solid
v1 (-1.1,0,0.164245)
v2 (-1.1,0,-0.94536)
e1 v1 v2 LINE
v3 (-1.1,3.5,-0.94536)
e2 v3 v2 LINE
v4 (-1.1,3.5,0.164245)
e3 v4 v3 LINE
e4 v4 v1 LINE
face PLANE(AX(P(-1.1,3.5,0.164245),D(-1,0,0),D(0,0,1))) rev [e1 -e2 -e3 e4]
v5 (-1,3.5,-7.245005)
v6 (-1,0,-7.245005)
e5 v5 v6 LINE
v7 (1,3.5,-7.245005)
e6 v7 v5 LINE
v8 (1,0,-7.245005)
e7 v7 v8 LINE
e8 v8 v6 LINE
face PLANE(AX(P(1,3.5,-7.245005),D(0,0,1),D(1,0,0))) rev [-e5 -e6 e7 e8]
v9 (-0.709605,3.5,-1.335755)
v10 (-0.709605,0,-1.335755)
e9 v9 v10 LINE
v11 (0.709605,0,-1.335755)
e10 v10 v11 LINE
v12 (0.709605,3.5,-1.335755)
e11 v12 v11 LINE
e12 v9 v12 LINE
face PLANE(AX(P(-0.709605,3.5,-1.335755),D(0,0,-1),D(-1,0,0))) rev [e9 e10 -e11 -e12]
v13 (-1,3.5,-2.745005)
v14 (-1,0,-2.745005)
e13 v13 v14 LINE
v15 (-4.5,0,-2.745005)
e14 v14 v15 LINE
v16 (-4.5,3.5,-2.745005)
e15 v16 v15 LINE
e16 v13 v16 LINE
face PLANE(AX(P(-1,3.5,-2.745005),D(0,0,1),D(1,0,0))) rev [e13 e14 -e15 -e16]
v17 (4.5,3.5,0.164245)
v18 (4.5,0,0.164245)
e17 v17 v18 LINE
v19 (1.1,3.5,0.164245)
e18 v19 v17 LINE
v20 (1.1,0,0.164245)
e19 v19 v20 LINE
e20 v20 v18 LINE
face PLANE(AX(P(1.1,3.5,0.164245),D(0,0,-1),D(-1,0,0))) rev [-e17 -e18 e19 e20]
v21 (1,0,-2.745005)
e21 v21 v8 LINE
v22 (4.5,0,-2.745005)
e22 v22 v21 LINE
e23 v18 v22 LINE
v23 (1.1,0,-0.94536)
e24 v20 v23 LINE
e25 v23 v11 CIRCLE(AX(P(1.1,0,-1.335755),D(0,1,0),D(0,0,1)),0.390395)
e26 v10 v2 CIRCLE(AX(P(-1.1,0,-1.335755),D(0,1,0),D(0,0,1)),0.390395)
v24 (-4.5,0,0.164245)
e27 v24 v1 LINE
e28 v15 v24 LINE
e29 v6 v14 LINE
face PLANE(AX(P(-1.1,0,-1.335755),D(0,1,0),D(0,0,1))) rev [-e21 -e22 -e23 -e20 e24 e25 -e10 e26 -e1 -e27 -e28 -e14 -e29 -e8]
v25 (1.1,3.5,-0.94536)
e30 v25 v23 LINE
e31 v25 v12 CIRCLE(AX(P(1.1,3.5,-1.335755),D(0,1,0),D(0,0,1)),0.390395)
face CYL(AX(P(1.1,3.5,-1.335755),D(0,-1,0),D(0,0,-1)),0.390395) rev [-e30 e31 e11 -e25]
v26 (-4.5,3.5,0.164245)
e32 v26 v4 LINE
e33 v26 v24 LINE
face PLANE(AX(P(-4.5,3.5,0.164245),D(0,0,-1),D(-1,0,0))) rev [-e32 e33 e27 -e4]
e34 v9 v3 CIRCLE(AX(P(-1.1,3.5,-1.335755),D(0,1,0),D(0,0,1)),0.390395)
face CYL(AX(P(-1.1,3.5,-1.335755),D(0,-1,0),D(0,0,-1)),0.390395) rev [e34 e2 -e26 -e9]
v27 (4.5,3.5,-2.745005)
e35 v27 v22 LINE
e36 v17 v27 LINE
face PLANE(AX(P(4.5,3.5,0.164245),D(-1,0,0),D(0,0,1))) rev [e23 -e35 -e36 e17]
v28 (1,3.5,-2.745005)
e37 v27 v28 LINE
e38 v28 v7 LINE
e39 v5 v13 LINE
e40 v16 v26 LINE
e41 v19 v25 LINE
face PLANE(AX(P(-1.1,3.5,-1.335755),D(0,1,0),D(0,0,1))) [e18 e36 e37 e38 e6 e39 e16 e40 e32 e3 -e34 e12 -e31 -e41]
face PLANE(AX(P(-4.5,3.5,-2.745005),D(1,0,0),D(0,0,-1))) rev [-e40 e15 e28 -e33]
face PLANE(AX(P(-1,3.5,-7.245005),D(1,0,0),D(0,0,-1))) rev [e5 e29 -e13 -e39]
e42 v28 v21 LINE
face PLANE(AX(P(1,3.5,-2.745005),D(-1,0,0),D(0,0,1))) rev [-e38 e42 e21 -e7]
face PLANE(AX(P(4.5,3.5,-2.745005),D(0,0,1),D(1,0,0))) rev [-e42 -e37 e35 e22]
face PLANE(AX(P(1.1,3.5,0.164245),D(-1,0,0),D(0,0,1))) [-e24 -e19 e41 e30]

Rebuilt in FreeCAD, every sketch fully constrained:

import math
import FreeCAD as App
import Part
import Sketcher

V = App.Vector

doc = App.newDocument("Part")
body = doc.addObject("PartDesign::Body", "Body")

sketch1 = body.newObject("Sketcher::SketchObject", "Sketch")
sketch1.AttachmentSupport = (doc.getObject("XZ_Plane"), [""])
sketch1.MapMode = "FlatFace"
sketch1.addGeometry([
    Part.LineSegment(V(-4.5, 0.16, 0), V(-1.1, 0.16, 0)),
    Part.LineSegment(V(-1.1, 0.16, 0), V(-1.1, -0.95, 0)),
    Part.ArcOfCircle(Part.Circle(V(-1.1, -1.34, 0), V(0, 0, 1), 0.39), math.radians(90), math.radians(360)),
    Part.LineSegment(V(-0.71, -1.34, 0), V(0.71, -1.34, 0)),
    Part.ArcOfCircle(Part.Circle(V(1.1, -1.34, 0), V(0, 0, 1), 0.39), math.radians(180), math.radians(450)),
    Part.LineSegment(V(1.1, -0.95, 0), V(1.1, 0.16, 0)),
    Part.LineSegment(V(1.1, 0.16, 0), V(4.5, 0.16, 0)),
    Part.LineSegment(V(4.5, 0.16, 0), V(4.5, -2.75, 0)),
    Part.LineSegment(V(4.5, -2.75, 0), V(1, -2.75, 0)),
    Part.LineSegment(V(1, -2.75, 0), V(1, -7.25, 0)),
    Part.LineSegment(V(1, -7.25, 0), V(-1, -7.25, 0)),
    Part.LineSegment(V(-1, -7.25, 0), V(-1, -2.75, 0)),
    Part.LineSegment(V(-1, -2.75, 0), V(-4.5, -2.75, 0)),
    Part.LineSegment(V(-4.5, -2.75, 0), V(-4.5, 0.16, 0)),
], False)
sketch1.addConstraint([
    Sketcher.Constraint("Coincident", 0, 2, 1, 1),
    Sketcher.Constraint("Coincident", 1, 2, 2, 1),
    Sketcher.Constraint("Coincident", 2, 2, 3, 1),
    Sketcher.Constraint("Coincident", 3, 2, 4, 1),
    Sketcher.Constraint("Coincident", 4, 2, 5, 1),
    Sketcher.Constraint("Coincident", 5, 2, 6, 1),
    Sketcher.Constraint("Coincident", 6, 2, 7, 1),
    Sketcher.Constraint("Coincident", 7, 2, 8, 1),
    Sketcher.Constraint("Coincident", 8, 2, 9, 1),
    Sketcher.Constraint("Coincident", 9, 2, 10, 1),
    Sketcher.Constraint("Coincident", 10, 2, 11, 1),
    Sketcher.Constraint("Coincident", 11, 2, 12, 1),
    Sketcher.Constraint("Coincident", 12, 2, 13, 1),
    Sketcher.Constraint("Coincident", 13, 2, 0, 1),
    Sketcher.Constraint("Horizontal", 0),
    Sketcher.Constraint("Vertical", 1),
    Sketcher.Constraint("Horizontal", 3),
    Sketcher.Constraint("Vertical", 5),
    Sketcher.Constraint("Horizontal", 6),
    Sketcher.Constraint("Vertical", 7),
    Sketcher.Constraint("Horizontal", 8),
    Sketcher.Constraint("Vertical", 9),
    Sketcher.Constraint("Horizontal", 10),
    Sketcher.Constraint("Vertical", 11),
    Sketcher.Constraint("Horizontal", 12),
    Sketcher.Constraint("Vertical", 13),
    Sketcher.Constraint("Equal", 2, 4),
    Sketcher.Constraint("Symmetric", 2, 3, 4, 3, -2),
    Sketcher.Constraint("Symmetric", 0, 2, 5, 2, -2),
    Sketcher.Constraint("Symmetric", 8, 2, 11, 2, -2),
    Sketcher.Constraint("Horizontal", 4, 3, 2, 2),
    Sketcher.Constraint("Vertical", 2, 3, 0, 2),
    Sketcher.Constraint("Equal", 0, 6),
    Sketcher.Constraint("DistanceX", 10, 2, 10, 1, 2.0),
    Sketcher.Constraint("DistanceX", 0, 1, 0, 2, 3.4),
    Sketcher.Constraint("DistanceX", 8, 2, 8, 1, 3.5),
    Sketcher.Constraint("DistanceY", 9, 2, 9, 1, 4.5),
    Sketcher.Constraint("DistanceY", 2, 3, 0, 2, 1.5),
    Sketcher.Constraint("Radius", 2, 0.390395),
    Sketcher.Constraint("DistanceY", 7, 2, 7, 1, 2.90925),
    Sketcher.Constraint("DistanceY", 1, 2, -1, 1, 0.94536),
])
pad1 = body.newObject("PartDesign::Pad", "Pad")
pad1.Profile = sketch1
pad1.Length = 3.5
pad1.Reversed = True

doc.recompute()
